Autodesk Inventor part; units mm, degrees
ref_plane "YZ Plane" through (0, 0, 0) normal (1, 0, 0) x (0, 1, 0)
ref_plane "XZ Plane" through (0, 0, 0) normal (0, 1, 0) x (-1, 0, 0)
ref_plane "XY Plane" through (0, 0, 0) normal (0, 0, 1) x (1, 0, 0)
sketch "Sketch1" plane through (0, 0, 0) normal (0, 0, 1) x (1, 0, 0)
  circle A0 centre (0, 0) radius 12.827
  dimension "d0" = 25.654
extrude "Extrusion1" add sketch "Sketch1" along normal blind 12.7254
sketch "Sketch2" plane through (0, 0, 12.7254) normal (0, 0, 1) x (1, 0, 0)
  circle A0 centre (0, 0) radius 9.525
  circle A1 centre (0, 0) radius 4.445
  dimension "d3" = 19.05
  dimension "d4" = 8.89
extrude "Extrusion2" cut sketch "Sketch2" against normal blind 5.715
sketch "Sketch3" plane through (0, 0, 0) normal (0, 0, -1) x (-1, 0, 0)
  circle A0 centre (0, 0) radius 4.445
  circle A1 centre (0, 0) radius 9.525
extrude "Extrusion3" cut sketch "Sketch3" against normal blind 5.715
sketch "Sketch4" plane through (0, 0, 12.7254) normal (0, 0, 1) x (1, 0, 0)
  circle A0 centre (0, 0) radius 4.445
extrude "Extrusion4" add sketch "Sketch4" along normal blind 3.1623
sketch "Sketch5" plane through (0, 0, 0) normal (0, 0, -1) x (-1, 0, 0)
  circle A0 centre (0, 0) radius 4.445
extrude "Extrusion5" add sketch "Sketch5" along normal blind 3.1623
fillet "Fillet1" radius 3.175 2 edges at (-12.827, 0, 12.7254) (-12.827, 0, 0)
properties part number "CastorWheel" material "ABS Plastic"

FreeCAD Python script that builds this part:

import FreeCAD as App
import Part
import Sketcher
from FreeCAD import Vector
Q = App.Units.Quantity


def edges_at(feature, points):
    """Names of the edges that pass closest to the given points."""
    edges = feature.Shape.Edges
    near = lambda p: min(range(len(edges)), key=lambda i: edges[i].distToShape(Part.Vertex(*p))[0])
    return sorted({f"Edge{near(p) + 1}" for p in points})

doc = App.newDocument("Part")
body = doc.addObject("PartDesign::Body", "Body")

sketch1 = doc.addObject("Sketcher::SketchObject", "Sketch")
body.addObject(sketch1)
sketch1.AttachmentSupport = (doc.XY_Plane, [""])
sketch1.MapMode = "FlatFace"
sketch1.addGeometry(Part.Circle(Vector(0, 0, 0), Vector(0, 0, 1), 12.827), False)
sketch1.addConstraint([
    Sketcher.Constraint("Coincident", 0, 3, -1, 1),
    Sketcher.Constraint("Diameter", 0, Q("1.01 in")),
])
pad1 = doc.addObject("PartDesign::Pad", "Pad")
body.addObject(pad1)
pad1.Profile = sketch1
pad1.Length = Q("0.501 in")

sketch2 = doc.addObject("Sketcher::SketchObject", "Sketch001")
body.addObject(sketch2)
sketch2.AttachmentSupport = (doc.XY_Plane, [""])
sketch2.MapMode = "FlatFace"
sketch2.AttachmentOffset = App.Placement(Vector(0, 0, 0.501 * 25.4), App.Rotation())
sketch2.addGeometry([
    Part.Circle(Vector(0, 0, 0), Vector(0, 0, 1), 9.525),
    Part.Circle(Vector(0, 0, 0), Vector(0, 0, 1), 4.445),
], False)
sketch2.addConstraint([
    Sketcher.Constraint("Coincident", 0, 3, -1, 1),
    Sketcher.Constraint("Coincident", 1, 3, -1, 1),
    Sketcher.Constraint("Diameter", 0, Q("0.75 in")),
    Sketcher.Constraint("Diameter", 1, Q("0.35 in")),
])
pocket1 = doc.addObject("PartDesign::Pocket", "Pocket")
body.addObject(pocket1)
pocket1.Profile = sketch2
pocket1.Length = Q("0.225 in")

sketch3 = doc.addObject("Sketcher::SketchObject", "Sketch002")
body.addObject(sketch3)
sketch3.AttachmentSupport = (doc.XY_Plane, [""])
sketch3.MapMode = "FlatFace"
sketch3.addGeometry([
    Part.Circle(Vector(0, 0, 0), Vector(0, 0, 1), 9.525),
    Part.Circle(Vector(0, 0, 0), Vector(0, 0, 1), 4.445),
], False)
sketch3.addConstraint([
    Sketcher.Constraint("Coincident", 0, 3, -1, 1),
    Sketcher.Constraint("Coincident", 1, 3, -1, 1),
    Sketcher.Constraint("Diameter", 0, Q("0.75 in")),
    Sketcher.Constraint("Diameter", 1, Q("0.35 in")),
])
pocket2 = doc.addObject("PartDesign::Pocket", "Pocket001")
body.addObject(pocket2)
pocket2.Profile = sketch3
pocket2.Length = Q("0.225 in")
pocket2.Reversed = True

sketch4 = doc.addObject("Sketcher::SketchObject", "Sketch003")
body.addObject(sketch4)
sketch4.AttachmentSupport = (doc.XY_Plane, [""])
sketch4.MapMode = "FlatFace"
sketch4.AttachmentOffset = App.Placement(Vector(0, 0, 0.501 * 25.4), App.Rotation())
sketch4.addGeometry(Part.Circle(Vector(0, 0, 0), Vector(0, 0, 1), 4.445), False)
sketch4.addConstraint([
    Sketcher.Constraint("Coincident", 0, 3, -1, 1),
    Sketcher.Constraint("Diameter", 0, Q("0.35 in")),
])
pad2 = doc.addObject("PartDesign::Pad", "Pad001")
body.addObject(pad2)
pad2.Profile = sketch4
pad2.Length = Q("0.1245 in")

sketch5 = doc.addObject("Sketcher::SketchObject", "Sketch004")
body.addObject(sketch5)
sketch5.AttachmentSupport = (doc.XY_Plane, [""])
sketch5.MapMode = "FlatFace"
sketch5.addGeometry(Part.Circle(Vector(0, 0, 0), Vector(0, 0, 1), 4.445), False)
sketch5.addConstraint([
    Sketcher.Constraint("Coincident", 0, 3, -1, 1),
    Sketcher.Constraint("Diameter", 0, Q("0.35 in")),
])
pad3 = doc.addObject("PartDesign::Pad", "Pad002")
body.addObject(pad3)
pad3.Profile = sketch5
pad3.Length = Q("0.1245 in")
pad3.Reversed = True
doc.recompute()

fillet = doc.addObject("PartDesign::Fillet", "Fillet")
body.addObject(fillet)
fillet.Base = (pad3, edges_at(pad3, [(-12.827, 0, 12.725), (-12.827, 0, 0)]))
fillet.Radius = Q("0.125 in")

doc.recompute()
